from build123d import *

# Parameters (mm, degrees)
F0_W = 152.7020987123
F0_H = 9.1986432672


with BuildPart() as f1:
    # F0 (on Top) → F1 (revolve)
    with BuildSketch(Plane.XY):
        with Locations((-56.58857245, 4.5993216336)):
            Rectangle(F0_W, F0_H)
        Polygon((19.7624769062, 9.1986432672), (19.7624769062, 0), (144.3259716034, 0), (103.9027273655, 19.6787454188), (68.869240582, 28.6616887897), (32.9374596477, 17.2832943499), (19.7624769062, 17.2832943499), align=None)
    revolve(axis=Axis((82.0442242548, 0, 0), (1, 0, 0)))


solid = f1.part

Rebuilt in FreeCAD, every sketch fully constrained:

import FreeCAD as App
import Part
import Sketcher
Q = App.Units.Quantity


def add_polygon(sketch, points):
    """Adds a closed chain of lines whose ends are joined by coincident constraints."""
    first, n = sketch.GeometryCount, len(points)
    for a, b in zip(points, points[1:] + points[:1]):
        sketch.addGeometry(Part.LineSegment(App.Vector(*a, 0), App.Vector(*b, 0)), False)
    for i in range(n):
        sketch.addConstraint(Sketcher.Constraint("Coincident", first + i, 2, first + (i + 1) % n, 1))

doc = App.newDocument("Part")
body = doc.addObject("PartDesign::Body", "Body")

# Sketch on XY plane
sketch1 = body.newObject("Sketcher::SketchObject", "Sketch")
sketch1.AttachmentSupport = (doc.getObject("XY_Plane"), [""])
sketch1.MapMode = "FlatFace"
add_polygon(sketch1, [(-133, 9), (-133, 0), (144, 0), (104, 20), (69, 29), (33, 17), (20, 17), (20, 9)])  # lines 0-7
sketch1.addConstraint([
    Sketcher.Constraint("Vertical", 0),
    Sketcher.Constraint("Horizontal", 1),
    Sketcher.Constraint("Horizontal", 5),
    Sketcher.Constraint("Vertical", 6),
    Sketcher.Constraint("Horizontal", 7),
    Sketcher.Constraint("PointOnObject", 0, 2, -1),
    Sketcher.Constraint("DistanceX", 7, 2, 7, 1, Q("152.702099 mm")),
    Sketcher.Constraint("DistanceY", 6, 2, 6, 1, Q("8.084651 mm")),
    Sketcher.Constraint("DistanceX", 1, 1, 1, 2, Q("277.265593 mm")),
    Sketcher.Constraint("DistanceX", 5, 2, 5, 1, Q("13.174983 mm")),
    Sketcher.Constraint("DistanceY", 0, 2, 0, 1, Q("9.198643 mm")),
    Sketcher.Constraint("DistanceX", 0, 2, -1, 1, Q("132.939622 mm")),
    Sketcher.Constraint("DistanceX", -1, 1, 3, 2, Q("68.869241 mm")),
    Sketcher.Constraint("DistanceY", -1, 1, 3, 2, Q("28.661689 mm")),
    Sketcher.Constraint("DistanceX", 0, 2, 2, 2, Q("236.842349 mm")),
    Sketcher.Constraint("DistanceY", 4, 2, 2, 2, Q("2.395451 mm")),
])
revolution = body.newObject("PartDesign::Revolution", "Revolution")
revolution.Profile = sketch1
revolution.ReferenceAxis = (sketch1, ["H_Axis"])
revolution.Angle = 360

doc.recompute()
